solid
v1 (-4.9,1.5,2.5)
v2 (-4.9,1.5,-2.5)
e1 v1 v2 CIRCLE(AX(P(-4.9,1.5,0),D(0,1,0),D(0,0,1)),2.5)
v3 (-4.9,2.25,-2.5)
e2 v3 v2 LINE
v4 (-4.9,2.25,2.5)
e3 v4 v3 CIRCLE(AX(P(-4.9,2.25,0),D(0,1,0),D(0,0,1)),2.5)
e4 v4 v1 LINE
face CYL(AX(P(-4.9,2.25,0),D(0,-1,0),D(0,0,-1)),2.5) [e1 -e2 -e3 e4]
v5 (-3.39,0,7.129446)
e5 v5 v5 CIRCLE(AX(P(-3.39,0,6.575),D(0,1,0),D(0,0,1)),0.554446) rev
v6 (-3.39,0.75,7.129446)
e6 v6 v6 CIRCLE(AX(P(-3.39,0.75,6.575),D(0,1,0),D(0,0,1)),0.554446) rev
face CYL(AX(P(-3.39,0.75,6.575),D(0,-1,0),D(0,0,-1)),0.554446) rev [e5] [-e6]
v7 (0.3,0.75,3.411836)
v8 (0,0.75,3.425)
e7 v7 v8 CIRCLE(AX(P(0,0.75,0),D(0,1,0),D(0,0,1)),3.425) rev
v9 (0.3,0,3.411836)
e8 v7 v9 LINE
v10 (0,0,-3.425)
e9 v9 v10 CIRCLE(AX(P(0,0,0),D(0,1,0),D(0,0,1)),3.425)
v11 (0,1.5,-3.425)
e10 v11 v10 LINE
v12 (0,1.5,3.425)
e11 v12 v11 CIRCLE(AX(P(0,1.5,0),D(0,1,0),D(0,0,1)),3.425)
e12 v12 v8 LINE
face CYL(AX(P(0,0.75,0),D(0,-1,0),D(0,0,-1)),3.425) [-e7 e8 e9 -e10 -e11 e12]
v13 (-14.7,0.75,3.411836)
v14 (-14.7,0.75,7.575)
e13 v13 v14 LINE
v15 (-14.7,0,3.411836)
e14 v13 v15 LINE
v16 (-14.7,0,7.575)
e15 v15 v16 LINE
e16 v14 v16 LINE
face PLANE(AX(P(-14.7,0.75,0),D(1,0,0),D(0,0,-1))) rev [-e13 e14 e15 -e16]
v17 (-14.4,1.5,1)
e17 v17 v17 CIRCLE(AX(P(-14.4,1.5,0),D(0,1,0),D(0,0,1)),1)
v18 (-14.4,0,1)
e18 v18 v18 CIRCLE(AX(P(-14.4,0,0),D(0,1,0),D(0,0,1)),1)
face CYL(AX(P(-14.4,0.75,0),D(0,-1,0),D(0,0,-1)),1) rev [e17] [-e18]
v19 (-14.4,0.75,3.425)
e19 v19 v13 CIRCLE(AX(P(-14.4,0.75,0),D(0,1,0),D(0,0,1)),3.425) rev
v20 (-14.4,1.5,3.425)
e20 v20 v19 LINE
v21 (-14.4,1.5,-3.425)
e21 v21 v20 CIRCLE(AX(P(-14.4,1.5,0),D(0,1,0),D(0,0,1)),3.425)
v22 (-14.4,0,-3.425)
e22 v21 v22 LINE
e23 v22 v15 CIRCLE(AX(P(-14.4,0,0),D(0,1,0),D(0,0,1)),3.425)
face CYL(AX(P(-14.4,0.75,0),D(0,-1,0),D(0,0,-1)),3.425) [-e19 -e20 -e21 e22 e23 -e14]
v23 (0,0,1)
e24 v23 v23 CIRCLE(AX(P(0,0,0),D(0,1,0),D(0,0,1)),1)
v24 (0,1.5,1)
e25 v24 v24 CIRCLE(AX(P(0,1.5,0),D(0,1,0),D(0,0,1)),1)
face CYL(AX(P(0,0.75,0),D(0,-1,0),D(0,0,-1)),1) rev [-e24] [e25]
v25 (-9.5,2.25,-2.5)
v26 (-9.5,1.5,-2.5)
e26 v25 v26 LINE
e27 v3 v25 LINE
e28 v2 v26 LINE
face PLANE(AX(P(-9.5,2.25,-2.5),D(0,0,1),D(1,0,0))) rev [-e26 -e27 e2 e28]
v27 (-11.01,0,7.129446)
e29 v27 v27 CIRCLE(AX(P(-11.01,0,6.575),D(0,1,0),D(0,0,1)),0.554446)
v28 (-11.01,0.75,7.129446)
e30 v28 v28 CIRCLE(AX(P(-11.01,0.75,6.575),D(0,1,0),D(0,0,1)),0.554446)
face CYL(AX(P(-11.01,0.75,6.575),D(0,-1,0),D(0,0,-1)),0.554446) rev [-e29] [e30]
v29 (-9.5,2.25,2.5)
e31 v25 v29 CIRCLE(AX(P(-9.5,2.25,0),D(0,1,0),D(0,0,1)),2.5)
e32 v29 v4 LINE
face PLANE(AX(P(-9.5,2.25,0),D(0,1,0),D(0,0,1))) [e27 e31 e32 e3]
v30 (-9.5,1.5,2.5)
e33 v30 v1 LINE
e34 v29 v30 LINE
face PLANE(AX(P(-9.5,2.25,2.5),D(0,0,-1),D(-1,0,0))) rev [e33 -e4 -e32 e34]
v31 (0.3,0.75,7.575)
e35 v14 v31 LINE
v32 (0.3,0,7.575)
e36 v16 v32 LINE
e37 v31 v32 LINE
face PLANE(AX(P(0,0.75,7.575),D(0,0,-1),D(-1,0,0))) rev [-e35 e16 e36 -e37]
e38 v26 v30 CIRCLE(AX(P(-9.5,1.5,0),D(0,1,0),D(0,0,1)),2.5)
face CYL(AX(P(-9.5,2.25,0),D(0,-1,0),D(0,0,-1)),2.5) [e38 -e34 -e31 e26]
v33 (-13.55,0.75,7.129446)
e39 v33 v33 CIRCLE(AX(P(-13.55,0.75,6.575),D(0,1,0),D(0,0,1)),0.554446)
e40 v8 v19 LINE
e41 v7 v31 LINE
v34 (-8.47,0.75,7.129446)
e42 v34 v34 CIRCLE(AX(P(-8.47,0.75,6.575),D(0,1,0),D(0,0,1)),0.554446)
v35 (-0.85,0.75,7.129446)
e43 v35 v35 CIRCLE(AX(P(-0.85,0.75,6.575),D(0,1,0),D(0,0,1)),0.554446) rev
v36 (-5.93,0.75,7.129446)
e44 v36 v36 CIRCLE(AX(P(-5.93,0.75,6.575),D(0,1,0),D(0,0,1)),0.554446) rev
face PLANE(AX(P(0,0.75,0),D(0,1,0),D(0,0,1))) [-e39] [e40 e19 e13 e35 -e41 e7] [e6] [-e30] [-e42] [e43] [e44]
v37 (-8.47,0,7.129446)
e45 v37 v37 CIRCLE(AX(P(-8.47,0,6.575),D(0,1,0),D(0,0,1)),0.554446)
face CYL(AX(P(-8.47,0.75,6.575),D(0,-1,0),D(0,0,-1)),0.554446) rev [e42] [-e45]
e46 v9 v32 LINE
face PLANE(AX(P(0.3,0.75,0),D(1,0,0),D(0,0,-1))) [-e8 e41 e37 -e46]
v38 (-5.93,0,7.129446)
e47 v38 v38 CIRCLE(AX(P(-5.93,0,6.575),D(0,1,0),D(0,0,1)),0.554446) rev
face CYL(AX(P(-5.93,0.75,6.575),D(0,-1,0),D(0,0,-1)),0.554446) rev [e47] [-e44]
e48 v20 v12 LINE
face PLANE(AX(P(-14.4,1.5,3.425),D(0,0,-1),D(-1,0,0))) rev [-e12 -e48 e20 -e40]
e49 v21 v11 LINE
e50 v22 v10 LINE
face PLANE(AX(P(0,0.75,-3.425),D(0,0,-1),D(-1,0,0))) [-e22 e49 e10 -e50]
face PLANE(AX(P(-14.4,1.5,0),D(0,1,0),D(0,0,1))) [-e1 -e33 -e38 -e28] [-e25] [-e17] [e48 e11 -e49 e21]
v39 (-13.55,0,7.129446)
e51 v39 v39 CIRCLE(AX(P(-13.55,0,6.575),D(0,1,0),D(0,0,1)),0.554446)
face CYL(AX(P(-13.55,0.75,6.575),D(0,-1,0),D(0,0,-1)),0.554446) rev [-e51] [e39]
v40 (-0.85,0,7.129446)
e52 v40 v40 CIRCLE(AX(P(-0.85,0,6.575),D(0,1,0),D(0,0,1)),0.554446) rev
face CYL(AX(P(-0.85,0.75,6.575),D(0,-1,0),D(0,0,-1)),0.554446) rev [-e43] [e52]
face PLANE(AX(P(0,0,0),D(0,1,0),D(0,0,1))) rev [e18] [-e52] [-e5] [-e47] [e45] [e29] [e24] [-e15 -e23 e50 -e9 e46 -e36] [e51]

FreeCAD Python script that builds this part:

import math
import FreeCAD as App
import Part
import Sketcher
from FreeCAD import Vector

doc = App.newDocument("Part")
body = doc.addObject("PartDesign::Body", "Body")

# Sketch on XZ plane
sketch1 = body.newObject("Sketcher::SketchObject", "Sketch")
sketch1.AttachmentSupport = (doc.getObject("XZ_Plane"), [""])
sketch1.MapMode = "FlatFace"
sketch1.addGeometry([
    Part.ArcOfCircle(Part.Circle(Vector(-14.4, 0, 0), Vector(0, 0, 1), 3.4), math.radians(95), math.radians(270)),  # 0
    Part.LineSegment(Vector(-14.7, 3.4, 0), Vector(-14.7, 7.6, 0)),  # 1
    Part.LineSegment(Vector(-14.7, 7.6, 0), Vector(0.3, 7.6, 0)),  # 2
    Part.LineSegment(Vector(0.3, 7.6, 0), Vector(0.3, 3.4, 0)),  # 3
    Part.ArcOfCircle(Part.Circle(Vector(0, 0, 0), Vector(0, 0, 1), 3.4), math.radians(-90), math.radians(85)),  # 4
    Part.LineSegment(Vector(0, -3.4, 0), Vector(-14.4, -3.4, 0)),  # 5
    Part.Circle(Vector(-14.4, 0, 0), Vector(0, 0, 1), 1),  # 6
    Part.Circle(Vector(0, 0, 0), Vector(0, 0, 1), 1),  # 7
    Part.Circle(Vector(-3.4, 6.6, 0), Vector(0, 0, 1), 0.6),  # 8
    Part.Circle(Vector(-0.8, 6.6, 0), Vector(0, 0, 1), 0.6),  # 9
    Part.Circle(Vector(-5.9, 6.6, 0), Vector(0, 0, 1), 0.6),  # 10
    Part.Circle(Vector(-13.6, 6.6, 0), Vector(0, 0, 1), 0.6),  # 11
    Part.Circle(Vector(-11, 6.6, 0), Vector(0, 0, 1), 0.6),  # 12
    Part.Circle(Vector(-8.5, 6.6, 0), Vector(0, 0, 1), 0.6),  # 13
], False)
sketch1.addConstraint([
    Sketcher.Constraint("Coincident", 0, 1, 1, 1),
    Sketcher.Constraint("Coincident", 1, 2, 2, 1),
    Sketcher.Constraint("Coincident", 2, 2, 3, 1),
    Sketcher.Constraint("Coincident", 3, 2, 4, 2),
    Sketcher.Constraint("Tangent", 4, 1, 5, 1),
    Sketcher.Constraint("Tangent", 5, 2, 0, 2),
    Sketcher.Constraint("Vertical", 1),
    Sketcher.Constraint("Horizontal", 2),
    Sketcher.Constraint("Vertical", 3),
    Sketcher.Constraint("Horizontal", 5),
    Sketcher.Constraint("Coincident", 4, 3, -1, 1),
    Sketcher.Constraint("Coincident", 7, 3, -1, 1),
    Sketcher.Constraint("Coincident", 6, 3, 0, 3),
    Sketcher.Constraint("Equal", 0, 4),
    Sketcher.Constraint("Equal", 6, 7),
    Sketcher.Constraint("Equal", 8, 9),
    Sketcher.Constraint("Equal", 9, 10),
    Sketcher.Constraint("Equal", 10, 11),
    Sketcher.Constraint("Equal", 11, 12),
    Sketcher.Constraint("Equal", 12, 13),
    Sketcher.Constraint("Horizontal", 8, 3, 9, 3),
    Sketcher.Constraint("Horizontal", 9, 3, 10, 3),
    Sketcher.Constraint("Horizontal", 10, 3, 11, 3),
    Sketcher.Constraint("Horizontal", 11, 3, 12, 3),
    Sketcher.Constraint("Horizontal", 12, 3, 13, 3),
    Sketcher.Constraint("Horizontal", 0, 1, 3, 2),
    Sketcher.Constraint("Diameter", 6, 2.0),
    Sketcher.Constraint("DistanceX", 2, 1, 2, 2, 15.0),
    Sketcher.Constraint("DistanceX", 5, 2, 5, 1, 14.4),
    Sketcher.Constraint("Radius", 0, 3.425),
    Sketcher.Constraint("DistanceY", 11, 3, 1, 2, 1.0),
    Sketcher.Constraint("DistanceY", 4, 1, 9, 3, 10.0),
    Sketcher.Constraint("DistanceX", 11, 3, 9, 3, 12.7),
    Sketcher.Constraint("Diameter", 8, 1.108891),
    Sketcher.Constraint("DistanceX", 8, 3, -1, 1, 3.39),
    Sketcher.Constraint("DistanceX", 9, 3, -1, 1, 0.85),
    Sketcher.Constraint("DistanceX", 10, 3, -1, 1, 5.93),
    Sketcher.Constraint("DistanceX", 12, 3, -1, 1, 11.01),
    Sketcher.Constraint("DistanceX", 13, 3, -1, 1, 8.47),
])
pad1 = body.newObject("PartDesign::Pad", "Pad")
pad1.Profile = sketch1
pad1.Length = 0.75
pad1.Reversed = True

# Sketch on XZ plane
sketch2 = body.newObject("Sketcher::SketchObject", "Sketch001")
sketch2.AttachmentSupport = (doc.getObject("XZ_Plane"), [""])
sketch2.MapMode = "FlatFace"
sketch2.addGeometry([
    Part.LineSegment(Vector(0, -3.42, 0), Vector(-14.4, -3.42, 0)),  # 0
    Part.ArcOfCircle(Part.Circle(Vector(-14.4, 0, 0), Vector(0, 0, 1), 3.42), math.radians(95), math.radians(270)),  # 1
    Part.ArcOfCircle(Part.Circle(Vector(-14.4, 0, 0), Vector(0, 0, 1), 3.43), math.radians(90), math.radians(95.03)),  # 2
    Part.LineSegment(Vector(-14.4, 3.42, 0), Vector(0, 3.42, 0)),  # 3
    Part.ArcOfCircle(Part.Circle(Vector(0, 0, 0), Vector(0, 0, 1), 3.43), math.radians(84.97), math.radians(90)),  # 4
    Part.ArcOfCircle(Part.Circle(Vector(0, 0, 0), Vector(0, 0, 1), 3.42), math.radians(-90), math.radians(85)),  # 5
    Part.Circle(Vector(-14.4, 0, 0), Vector(0, 0, 1), 1),  # 6
    Part.Circle(Vector(0, 0, 0), Vector(0, 0, 1), 1),  # 7
], False)
sketch2.addConstraint([
    Sketcher.Constraint("Tangent", 0, 2, 1, 2),
    Sketcher.Constraint("Tangent", 1, 1, 2, 2),
    Sketcher.Constraint("Tangent", 2, 1, 3, 1),
    Sketcher.Constraint("Tangent", 3, 2, 4, 2),
    Sketcher.Constraint("Tangent", 4, 1, 5, 2),
    Sketcher.Constraint("Tangent", 5, 1, 0, 1),
    Sketcher.Constraint("Horizontal", 0),
    Sketcher.Constraint("Horizontal", 3),
    Sketcher.Constraint("Coincident", 4, 3, -1, 1),
    Sketcher.Constraint("Coincident", 7, 3, -1, 1),
    Sketcher.Constraint("Coincident", 6, 3, 1, 3),
    Sketcher.Constraint("Equal", 1, 2),
    Sketcher.Constraint("Equal", 2, 4),
    Sketcher.Constraint("Equal", 6, 7),
    Sketcher.Constraint("Horizontal", 1, 1, 4, 1),
    Sketcher.Constraint("Diameter", 6, 2.0),
    Sketcher.Constraint("DistanceX", 0, 2, 0, 1, 14.4),
    Sketcher.Constraint("Radius", 1, 3.425),
    Sketcher.Constraint("DistanceX", 1, 1, -1, 1, 14.7),
])
pad2 = body.newObject("PartDesign::Pad", "Pad001")
pad2.Profile = sketch2
pad2.Length = 1.5
pad2.Reversed = True

# Sketch on XZ plane
sketch3 = body.newObject("Sketcher::SketchObject", "Sketch002")
sketch3.AttachmentSupport = (doc.getObject("XZ_Plane"), [""])
sketch3.MapMode = "FlatFace"
sketch3.AttachmentOffset = App.Placement(Vector(0, 0, -1.5), App.Rotation())
sketch3.addGeometry([
    Part.LineSegment(Vector(-4.9, -2.5, 0), Vector(-9.5, -2.5, 0)),
    Part.ArcOfCircle(Part.Circle(Vector(-9.5, 0, 0), Vector(0, 0, 1), 2.5), math.radians(90), math.radians(270)),
    Part.LineSegment(Vector(-9.5, 2.5, 0), Vector(-4.9, 2.5, 0)),
    Part.ArcOfCircle(Part.Circle(Vector(-4.9, 0, 0), Vector(0, 0, 1), 2.5), math.radians(-90), math.radians(90)),
], False)
sketch3.addConstraint([
    Sketcher.Constraint("Tangent", 0, 2, 1, 2),
    Sketcher.Constraint("Tangent", 1, 1, 2, 1),
    Sketcher.Constraint("Tangent", 2, 2, 3, 2),
    Sketcher.Constraint("Tangent", 3, 1, 0, 1),
    Sketcher.Constraint("Horizontal", 0),
    Sketcher.Constraint("Horizontal", 2),
    Sketcher.Constraint("PointOnObject", 1, 3, -1),
    Sketcher.Constraint("Radius", 1, 2.5),
    Sketcher.Constraint("DistanceX", 0, 2, 0, 1, 4.6),
    Sketcher.Constraint("DistanceX", 1, 3, -1, 1, 9.5),
])
pad3 = body.newObject("PartDesign::Pad", "Pad002")
pad3.Profile = sketch3
pad3.Length = 0.75
pad3.Reversed = True

doc.recompute()
